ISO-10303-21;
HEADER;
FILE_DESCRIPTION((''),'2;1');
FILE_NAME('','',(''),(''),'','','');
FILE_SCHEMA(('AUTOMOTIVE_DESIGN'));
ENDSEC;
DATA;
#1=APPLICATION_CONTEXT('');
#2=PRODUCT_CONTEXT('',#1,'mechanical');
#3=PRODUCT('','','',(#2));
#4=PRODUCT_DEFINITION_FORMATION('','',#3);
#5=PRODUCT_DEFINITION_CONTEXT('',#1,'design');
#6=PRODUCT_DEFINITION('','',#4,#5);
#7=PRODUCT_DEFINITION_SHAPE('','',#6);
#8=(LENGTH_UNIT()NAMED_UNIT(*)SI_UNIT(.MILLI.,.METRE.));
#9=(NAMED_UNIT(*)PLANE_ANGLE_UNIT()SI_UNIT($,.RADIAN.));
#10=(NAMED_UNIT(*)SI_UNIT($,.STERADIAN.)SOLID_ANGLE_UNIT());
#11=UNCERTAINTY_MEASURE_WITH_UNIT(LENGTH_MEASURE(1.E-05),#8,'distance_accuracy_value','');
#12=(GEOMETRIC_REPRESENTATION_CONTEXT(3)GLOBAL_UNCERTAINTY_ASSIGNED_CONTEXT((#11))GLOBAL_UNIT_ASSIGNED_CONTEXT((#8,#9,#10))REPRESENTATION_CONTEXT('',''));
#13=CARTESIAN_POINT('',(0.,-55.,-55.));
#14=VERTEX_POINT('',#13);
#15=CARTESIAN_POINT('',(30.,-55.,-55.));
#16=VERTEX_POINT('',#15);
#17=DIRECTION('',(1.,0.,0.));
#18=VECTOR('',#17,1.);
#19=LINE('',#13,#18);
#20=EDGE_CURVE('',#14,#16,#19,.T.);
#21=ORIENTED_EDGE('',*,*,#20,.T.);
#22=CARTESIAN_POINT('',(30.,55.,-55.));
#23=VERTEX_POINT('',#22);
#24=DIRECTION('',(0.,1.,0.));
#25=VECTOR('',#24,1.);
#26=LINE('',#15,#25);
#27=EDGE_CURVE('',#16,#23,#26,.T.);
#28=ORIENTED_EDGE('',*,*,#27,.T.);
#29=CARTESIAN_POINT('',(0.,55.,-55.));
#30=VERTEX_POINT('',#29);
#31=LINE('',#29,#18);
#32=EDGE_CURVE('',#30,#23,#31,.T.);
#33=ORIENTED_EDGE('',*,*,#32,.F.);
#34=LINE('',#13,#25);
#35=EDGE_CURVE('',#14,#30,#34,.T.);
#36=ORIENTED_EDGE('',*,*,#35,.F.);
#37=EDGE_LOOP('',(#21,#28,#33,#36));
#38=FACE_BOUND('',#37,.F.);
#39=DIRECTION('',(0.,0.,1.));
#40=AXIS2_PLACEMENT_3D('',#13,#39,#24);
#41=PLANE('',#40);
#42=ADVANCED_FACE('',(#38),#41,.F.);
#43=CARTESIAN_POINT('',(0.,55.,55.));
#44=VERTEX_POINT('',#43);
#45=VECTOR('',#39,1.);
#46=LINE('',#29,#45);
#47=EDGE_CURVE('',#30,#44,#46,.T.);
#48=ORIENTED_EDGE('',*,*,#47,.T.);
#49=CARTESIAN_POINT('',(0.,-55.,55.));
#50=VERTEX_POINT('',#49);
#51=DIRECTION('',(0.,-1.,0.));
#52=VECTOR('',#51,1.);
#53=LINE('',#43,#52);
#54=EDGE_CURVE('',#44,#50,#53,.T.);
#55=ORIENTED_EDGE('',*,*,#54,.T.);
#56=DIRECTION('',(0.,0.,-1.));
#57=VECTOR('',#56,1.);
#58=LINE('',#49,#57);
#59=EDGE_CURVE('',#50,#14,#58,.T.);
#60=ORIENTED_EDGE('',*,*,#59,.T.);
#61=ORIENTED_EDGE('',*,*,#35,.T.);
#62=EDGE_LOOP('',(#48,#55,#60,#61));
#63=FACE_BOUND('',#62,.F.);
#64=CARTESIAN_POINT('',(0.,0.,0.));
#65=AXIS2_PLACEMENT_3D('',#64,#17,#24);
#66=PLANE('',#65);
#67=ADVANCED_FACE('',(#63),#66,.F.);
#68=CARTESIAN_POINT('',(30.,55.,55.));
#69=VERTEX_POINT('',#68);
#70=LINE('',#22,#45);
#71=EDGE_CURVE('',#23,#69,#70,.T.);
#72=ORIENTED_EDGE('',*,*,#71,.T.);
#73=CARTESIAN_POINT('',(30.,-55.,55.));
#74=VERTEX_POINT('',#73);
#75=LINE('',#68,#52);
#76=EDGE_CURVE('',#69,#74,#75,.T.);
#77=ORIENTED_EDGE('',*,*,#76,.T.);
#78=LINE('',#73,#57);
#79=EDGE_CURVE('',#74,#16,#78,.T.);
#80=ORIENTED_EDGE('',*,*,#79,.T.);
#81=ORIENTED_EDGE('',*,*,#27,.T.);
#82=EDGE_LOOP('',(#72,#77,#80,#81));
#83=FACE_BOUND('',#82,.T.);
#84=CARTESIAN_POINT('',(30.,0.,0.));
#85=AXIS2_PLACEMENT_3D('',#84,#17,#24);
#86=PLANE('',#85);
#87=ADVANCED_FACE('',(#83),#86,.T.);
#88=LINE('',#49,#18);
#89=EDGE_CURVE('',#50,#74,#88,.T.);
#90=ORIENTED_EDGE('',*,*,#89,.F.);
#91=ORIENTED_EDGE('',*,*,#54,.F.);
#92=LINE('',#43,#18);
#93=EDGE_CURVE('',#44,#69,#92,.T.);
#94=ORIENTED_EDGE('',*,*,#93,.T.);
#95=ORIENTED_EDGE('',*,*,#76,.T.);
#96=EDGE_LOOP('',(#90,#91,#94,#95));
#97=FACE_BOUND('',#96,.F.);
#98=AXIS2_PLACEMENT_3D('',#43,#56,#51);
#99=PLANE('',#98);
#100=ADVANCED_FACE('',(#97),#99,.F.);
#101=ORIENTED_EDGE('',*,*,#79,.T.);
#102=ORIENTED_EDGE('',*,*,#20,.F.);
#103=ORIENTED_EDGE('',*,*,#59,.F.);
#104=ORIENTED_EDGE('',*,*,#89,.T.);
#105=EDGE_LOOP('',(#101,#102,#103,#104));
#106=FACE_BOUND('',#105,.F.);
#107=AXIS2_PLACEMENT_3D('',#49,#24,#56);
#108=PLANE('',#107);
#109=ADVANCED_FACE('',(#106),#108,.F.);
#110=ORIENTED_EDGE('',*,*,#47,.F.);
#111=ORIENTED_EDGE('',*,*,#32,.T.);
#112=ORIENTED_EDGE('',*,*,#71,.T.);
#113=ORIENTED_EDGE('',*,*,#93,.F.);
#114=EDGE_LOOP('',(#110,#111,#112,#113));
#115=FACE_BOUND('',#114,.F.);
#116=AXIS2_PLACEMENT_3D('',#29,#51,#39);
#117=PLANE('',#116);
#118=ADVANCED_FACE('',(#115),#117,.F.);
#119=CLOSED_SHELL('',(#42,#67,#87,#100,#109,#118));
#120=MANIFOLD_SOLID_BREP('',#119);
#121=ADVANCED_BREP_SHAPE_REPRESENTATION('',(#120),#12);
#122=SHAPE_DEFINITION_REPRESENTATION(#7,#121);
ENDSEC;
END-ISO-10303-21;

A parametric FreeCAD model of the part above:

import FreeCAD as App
import Part
import Sketcher

doc = App.newDocument("Part")
body = doc.addObject("PartDesign::Body", "Body")

sketch1 = body.newObject("Sketcher::SketchObject", "Sketch")
sketch1.AttachmentSupport = (doc.getObject("YZ_Plane"), [""])
sketch1.MapMode = "FlatFace"
sketch1.addGeometry([
    Part.LineSegment(App.Vector(-55, 55, 0), App.Vector(-55, -55, 0)),
    Part.LineSegment(App.Vector(-55, -55, 0), App.Vector(55, -55, 0)),
    Part.LineSegment(App.Vector(55, -55, 0), App.Vector(55, 55, 0)),
    Part.LineSegment(App.Vector(55, 55, 0), App.Vector(-55, 55, 0)),
], False)
sketch1.addConstraint([
    Sketcher.Constraint("Coincident", 0, 2, 1, 1),
    Sketcher.Constraint("Coincident", 1, 2, 2, 1),
    Sketcher.Constraint("Coincident", 2, 2, 3, 1),
    Sketcher.Constraint("Coincident", 3, 2, 0, 1),
    Sketcher.Constraint("Vertical", 0),
    Sketcher.Constraint("Horizontal", 1),
    Sketcher.Constraint("Vertical", 2),
    Sketcher.Constraint("Horizontal", 3),
    Sketcher.Constraint("Symmetric", 0, 2, 2, 2, -1, 1),
    Sketcher.Constraint("Equal", 3, 0),
    Sketcher.Constraint("DistanceX", 1, 1, 1, 2, 110.0),
])
pad1 = body.newObject("PartDesign::Pad", "Pad")
pad1.Profile = sketch1
pad1.Length = 30

doc.recompute()
